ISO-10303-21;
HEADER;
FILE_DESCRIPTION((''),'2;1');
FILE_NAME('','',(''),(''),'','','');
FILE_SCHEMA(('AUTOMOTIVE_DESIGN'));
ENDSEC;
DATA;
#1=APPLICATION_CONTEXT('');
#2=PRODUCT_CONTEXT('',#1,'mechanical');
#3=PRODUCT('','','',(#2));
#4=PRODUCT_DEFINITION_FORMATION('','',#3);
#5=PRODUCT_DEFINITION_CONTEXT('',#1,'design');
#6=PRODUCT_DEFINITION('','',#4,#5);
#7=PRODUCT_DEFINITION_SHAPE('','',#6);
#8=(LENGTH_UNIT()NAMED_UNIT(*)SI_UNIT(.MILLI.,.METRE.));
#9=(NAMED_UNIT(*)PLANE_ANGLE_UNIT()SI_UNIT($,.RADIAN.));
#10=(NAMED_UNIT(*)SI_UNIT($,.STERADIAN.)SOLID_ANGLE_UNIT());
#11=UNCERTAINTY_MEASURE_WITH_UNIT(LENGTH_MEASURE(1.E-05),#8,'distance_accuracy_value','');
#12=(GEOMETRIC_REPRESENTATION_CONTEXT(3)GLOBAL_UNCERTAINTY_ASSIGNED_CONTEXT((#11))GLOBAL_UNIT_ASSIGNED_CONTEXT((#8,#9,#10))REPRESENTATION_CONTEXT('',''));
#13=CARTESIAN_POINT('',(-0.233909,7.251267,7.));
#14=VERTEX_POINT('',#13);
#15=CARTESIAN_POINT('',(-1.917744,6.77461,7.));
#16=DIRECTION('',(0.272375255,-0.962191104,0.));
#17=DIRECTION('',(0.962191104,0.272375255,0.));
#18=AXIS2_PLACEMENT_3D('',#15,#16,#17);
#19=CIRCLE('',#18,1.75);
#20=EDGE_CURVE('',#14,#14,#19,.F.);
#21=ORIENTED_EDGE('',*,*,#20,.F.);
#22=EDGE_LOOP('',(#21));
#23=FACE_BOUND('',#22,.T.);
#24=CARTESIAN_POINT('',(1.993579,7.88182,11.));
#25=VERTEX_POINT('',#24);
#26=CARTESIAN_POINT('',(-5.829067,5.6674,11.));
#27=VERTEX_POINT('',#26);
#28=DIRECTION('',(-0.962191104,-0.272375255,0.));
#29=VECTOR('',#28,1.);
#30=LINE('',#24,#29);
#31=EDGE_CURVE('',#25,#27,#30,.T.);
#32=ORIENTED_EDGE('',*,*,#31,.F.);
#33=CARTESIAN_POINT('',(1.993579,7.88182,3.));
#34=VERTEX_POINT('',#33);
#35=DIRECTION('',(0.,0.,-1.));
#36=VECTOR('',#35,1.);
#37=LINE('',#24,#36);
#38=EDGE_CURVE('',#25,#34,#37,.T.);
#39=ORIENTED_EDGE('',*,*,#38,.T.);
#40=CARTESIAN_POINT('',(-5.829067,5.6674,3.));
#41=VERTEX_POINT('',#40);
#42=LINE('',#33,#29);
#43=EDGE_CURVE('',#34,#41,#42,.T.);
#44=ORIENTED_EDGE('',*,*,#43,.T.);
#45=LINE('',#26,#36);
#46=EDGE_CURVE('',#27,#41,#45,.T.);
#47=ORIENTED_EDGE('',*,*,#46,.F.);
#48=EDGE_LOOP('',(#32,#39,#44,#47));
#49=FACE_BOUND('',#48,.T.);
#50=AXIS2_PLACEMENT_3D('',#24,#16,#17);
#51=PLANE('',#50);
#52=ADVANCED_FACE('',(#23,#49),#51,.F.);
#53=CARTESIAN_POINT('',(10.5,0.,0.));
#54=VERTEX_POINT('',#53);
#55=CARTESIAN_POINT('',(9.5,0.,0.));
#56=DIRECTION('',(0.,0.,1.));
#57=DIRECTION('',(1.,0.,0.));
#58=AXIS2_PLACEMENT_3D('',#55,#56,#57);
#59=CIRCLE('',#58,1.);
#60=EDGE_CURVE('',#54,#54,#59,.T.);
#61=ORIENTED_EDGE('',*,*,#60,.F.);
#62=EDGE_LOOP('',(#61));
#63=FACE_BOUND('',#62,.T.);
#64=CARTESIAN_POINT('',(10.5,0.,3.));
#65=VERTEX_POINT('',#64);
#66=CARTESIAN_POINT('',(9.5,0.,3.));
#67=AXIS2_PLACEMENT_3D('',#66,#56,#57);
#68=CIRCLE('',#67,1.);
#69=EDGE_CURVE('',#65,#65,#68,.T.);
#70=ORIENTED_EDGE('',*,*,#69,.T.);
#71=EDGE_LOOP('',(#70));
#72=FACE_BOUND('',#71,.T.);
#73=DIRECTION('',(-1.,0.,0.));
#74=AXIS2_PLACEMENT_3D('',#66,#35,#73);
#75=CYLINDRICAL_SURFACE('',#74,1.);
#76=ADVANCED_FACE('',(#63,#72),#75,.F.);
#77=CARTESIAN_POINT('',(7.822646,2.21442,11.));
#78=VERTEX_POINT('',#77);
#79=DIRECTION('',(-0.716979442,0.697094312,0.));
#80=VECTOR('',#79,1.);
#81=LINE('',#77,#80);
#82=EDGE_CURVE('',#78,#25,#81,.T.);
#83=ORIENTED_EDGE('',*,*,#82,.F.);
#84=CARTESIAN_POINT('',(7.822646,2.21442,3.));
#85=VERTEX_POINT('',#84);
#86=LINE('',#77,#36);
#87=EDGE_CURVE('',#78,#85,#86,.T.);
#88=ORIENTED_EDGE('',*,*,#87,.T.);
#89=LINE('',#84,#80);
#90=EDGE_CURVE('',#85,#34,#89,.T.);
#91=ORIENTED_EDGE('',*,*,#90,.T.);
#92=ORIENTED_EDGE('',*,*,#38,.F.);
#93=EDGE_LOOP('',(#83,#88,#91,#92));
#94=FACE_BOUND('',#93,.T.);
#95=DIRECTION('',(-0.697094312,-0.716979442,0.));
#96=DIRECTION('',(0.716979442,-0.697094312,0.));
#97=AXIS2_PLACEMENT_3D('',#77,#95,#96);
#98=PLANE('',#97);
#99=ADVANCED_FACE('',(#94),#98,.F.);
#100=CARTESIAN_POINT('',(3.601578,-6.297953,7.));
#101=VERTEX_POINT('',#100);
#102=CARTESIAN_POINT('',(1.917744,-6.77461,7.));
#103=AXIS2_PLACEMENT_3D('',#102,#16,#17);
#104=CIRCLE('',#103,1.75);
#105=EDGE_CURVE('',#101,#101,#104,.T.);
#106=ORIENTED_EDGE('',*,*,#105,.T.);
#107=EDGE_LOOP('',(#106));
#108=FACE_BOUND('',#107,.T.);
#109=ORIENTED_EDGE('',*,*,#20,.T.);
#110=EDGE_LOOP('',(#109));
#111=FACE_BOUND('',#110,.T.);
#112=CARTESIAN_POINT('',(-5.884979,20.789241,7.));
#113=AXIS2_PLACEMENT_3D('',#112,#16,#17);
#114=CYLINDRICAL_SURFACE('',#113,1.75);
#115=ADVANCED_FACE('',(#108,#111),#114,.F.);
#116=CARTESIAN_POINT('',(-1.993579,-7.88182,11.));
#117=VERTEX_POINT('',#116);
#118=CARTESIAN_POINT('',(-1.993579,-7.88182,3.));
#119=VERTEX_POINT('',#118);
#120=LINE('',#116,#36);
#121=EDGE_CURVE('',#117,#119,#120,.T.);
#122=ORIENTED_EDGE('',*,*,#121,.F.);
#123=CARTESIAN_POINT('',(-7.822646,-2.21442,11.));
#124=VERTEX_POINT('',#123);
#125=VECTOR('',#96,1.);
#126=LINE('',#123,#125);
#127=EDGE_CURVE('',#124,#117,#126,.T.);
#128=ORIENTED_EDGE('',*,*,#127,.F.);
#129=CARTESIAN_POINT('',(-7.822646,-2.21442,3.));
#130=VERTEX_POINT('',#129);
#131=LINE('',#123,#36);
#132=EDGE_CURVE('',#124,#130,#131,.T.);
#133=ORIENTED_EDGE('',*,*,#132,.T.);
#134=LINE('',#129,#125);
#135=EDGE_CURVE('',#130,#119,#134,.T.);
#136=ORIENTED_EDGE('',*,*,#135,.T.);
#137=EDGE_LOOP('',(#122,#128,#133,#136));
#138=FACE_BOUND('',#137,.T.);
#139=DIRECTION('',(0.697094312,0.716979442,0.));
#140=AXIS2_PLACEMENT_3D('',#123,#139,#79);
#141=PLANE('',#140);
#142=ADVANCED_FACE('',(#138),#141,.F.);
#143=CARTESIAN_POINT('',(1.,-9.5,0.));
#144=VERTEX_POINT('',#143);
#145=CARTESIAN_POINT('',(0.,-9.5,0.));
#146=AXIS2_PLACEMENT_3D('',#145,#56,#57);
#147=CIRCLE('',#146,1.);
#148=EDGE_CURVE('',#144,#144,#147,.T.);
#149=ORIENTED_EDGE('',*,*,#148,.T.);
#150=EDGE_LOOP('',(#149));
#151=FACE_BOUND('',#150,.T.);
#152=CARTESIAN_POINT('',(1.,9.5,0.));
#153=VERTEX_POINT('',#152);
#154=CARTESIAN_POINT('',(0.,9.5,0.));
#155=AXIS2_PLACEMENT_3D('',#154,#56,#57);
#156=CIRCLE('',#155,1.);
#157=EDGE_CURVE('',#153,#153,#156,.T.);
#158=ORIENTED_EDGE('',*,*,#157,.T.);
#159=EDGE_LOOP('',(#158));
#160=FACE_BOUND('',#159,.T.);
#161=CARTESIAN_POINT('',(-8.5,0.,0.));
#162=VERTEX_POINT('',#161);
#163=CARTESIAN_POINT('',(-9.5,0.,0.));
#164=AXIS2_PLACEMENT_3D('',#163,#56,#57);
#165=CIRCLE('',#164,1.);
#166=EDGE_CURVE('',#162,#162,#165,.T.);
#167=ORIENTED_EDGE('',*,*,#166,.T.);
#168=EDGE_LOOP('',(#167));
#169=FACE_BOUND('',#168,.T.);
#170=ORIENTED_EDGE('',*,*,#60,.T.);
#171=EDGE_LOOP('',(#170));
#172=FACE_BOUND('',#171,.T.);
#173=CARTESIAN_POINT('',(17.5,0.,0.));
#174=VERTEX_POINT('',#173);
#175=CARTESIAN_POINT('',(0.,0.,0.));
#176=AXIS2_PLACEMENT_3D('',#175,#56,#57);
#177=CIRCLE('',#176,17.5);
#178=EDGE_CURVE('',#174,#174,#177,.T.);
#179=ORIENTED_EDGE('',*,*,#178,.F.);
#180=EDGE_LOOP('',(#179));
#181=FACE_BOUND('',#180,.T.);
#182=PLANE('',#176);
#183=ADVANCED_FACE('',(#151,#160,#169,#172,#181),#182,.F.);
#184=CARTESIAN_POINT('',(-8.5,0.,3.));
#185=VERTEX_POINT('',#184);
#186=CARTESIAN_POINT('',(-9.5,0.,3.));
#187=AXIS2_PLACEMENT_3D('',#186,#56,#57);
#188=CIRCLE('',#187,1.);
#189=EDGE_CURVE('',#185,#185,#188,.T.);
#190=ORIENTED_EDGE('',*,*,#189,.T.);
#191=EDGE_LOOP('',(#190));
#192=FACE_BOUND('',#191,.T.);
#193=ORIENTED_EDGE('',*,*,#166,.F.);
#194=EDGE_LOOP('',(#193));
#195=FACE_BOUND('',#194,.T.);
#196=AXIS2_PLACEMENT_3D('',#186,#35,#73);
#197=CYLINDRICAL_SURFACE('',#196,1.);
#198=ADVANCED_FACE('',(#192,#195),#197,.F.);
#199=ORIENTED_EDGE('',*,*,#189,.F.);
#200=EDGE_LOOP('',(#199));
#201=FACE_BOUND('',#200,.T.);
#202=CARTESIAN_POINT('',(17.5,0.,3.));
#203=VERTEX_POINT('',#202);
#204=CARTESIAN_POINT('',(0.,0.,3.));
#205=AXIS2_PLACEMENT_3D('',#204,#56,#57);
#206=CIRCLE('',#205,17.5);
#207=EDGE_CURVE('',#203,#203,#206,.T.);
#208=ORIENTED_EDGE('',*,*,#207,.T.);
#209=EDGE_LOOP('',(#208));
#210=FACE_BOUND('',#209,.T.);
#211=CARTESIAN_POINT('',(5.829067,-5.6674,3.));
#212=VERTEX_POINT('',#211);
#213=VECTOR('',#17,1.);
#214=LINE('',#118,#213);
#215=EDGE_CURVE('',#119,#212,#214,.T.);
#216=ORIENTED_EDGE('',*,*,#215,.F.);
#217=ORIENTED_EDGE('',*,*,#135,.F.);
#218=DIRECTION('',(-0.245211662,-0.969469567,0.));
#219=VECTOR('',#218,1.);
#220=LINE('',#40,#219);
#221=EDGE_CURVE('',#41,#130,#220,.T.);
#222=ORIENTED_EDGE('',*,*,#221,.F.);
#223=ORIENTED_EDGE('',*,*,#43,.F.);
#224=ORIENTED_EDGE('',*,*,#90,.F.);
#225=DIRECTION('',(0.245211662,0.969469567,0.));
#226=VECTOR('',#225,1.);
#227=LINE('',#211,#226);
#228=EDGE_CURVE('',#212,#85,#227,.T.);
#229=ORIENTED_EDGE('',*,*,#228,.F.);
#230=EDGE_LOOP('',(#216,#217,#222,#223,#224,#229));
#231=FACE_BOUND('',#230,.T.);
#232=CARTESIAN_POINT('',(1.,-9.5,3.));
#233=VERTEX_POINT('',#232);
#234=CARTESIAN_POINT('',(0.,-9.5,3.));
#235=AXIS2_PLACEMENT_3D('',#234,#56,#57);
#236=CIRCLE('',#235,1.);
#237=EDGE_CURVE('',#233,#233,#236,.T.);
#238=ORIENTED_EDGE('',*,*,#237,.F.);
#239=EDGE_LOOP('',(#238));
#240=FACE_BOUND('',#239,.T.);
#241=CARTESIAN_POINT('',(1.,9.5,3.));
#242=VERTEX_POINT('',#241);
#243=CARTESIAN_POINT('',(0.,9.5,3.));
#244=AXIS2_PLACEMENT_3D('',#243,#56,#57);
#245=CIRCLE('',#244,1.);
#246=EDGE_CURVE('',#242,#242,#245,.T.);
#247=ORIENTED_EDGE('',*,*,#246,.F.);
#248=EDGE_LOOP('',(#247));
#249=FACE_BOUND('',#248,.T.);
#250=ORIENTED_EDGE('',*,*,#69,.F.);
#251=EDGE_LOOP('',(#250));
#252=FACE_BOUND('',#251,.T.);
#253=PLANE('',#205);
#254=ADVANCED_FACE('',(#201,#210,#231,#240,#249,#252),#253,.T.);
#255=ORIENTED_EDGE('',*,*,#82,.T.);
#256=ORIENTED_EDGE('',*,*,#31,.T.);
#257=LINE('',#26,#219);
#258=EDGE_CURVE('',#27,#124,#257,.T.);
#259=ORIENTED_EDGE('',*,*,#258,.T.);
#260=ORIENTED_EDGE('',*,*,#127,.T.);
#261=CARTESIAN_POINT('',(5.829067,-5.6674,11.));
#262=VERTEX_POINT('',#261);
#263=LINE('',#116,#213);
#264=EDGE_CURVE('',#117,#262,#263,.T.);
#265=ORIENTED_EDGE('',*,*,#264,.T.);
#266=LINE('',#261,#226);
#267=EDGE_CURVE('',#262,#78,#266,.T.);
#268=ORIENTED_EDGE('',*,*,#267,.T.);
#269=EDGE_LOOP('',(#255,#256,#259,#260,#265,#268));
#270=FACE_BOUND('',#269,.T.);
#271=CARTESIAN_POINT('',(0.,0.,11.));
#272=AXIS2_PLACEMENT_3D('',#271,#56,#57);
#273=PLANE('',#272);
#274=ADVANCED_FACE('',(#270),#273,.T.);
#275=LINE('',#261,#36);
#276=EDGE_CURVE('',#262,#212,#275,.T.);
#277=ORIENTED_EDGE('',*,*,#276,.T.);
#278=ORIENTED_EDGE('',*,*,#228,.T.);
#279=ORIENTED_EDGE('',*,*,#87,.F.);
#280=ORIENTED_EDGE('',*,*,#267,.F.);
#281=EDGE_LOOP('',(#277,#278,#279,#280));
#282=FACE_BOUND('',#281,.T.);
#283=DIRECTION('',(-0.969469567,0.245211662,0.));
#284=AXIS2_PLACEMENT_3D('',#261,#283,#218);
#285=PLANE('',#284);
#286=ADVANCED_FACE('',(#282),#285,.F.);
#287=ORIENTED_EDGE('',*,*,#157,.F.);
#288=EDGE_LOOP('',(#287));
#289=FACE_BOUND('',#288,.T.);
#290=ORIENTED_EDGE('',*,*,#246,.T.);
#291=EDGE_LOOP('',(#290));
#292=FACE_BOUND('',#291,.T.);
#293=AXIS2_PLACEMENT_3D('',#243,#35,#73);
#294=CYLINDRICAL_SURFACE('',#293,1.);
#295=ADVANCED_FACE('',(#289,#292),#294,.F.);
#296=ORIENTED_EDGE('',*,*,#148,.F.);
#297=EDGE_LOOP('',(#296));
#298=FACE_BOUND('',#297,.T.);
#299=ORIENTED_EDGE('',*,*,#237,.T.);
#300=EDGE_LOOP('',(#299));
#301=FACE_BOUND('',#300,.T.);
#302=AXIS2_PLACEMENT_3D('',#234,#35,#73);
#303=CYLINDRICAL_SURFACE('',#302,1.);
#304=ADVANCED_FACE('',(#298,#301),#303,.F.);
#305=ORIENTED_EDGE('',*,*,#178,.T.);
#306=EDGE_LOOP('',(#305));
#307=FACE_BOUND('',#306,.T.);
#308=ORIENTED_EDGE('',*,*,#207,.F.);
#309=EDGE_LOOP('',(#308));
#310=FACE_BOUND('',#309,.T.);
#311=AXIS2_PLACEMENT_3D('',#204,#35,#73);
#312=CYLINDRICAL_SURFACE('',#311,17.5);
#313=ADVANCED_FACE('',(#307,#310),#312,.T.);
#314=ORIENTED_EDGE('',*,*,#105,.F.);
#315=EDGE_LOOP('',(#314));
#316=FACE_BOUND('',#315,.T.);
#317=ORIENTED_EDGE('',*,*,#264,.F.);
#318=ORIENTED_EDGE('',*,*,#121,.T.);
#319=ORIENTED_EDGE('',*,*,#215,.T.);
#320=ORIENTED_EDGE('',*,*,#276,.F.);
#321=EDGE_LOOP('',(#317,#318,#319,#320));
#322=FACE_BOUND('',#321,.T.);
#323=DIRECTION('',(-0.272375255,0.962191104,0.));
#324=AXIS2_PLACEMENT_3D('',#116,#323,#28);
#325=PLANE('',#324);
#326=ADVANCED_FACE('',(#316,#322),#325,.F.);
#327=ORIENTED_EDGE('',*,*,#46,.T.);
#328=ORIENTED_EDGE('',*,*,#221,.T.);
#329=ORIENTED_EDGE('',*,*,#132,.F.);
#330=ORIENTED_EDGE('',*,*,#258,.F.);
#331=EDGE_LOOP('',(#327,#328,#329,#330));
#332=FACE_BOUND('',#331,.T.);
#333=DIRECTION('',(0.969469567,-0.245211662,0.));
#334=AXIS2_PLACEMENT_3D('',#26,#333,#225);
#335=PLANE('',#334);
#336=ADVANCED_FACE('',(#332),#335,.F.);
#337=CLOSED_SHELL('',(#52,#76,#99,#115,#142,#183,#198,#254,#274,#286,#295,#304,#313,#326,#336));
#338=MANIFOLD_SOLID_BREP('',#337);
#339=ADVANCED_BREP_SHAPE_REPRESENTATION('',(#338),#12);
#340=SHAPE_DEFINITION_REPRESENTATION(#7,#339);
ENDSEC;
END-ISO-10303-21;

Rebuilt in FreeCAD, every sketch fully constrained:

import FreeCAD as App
import Part
import Sketcher
Q = App.Units.Quantity

doc = App.newDocument("Part")
body = doc.addObject("PartDesign::Body", "Body")

sketch1 = body.newObject("Sketcher::SketchObject", "Sketch")
sketch1.AttachmentSupport = (doc.getObject("XY_Plane"), [""])
sketch1.MapMode = "FlatFace"
sketch1.addGeometry(Part.Circle(App.Vector(0, 0, 0), App.Vector(0, 0, 1), 17.5), False)
sketch1.addGeometry(Part.Circle(App.Vector(0, -9.5, 0), App.Vector(0, 0, 1), 1), False)
sketch1.addGeometry(Part.Circle(App.Vector(-9.5, 0, 0), App.Vector(0, 0, 1), 1), False)
sketch1.addGeometry(Part.Circle(App.Vector(9.5, 0, 0), App.Vector(0, 0, 1), 1), False)
sketch1.addGeometry(Part.Circle(App.Vector(0, 9.5, 0), App.Vector(0, 0, 1), 1), False)
sketch1.addConstraint(Sketcher.Constraint("Coincident", 0, 3, -1, 1))
sketch1.addConstraint(Sketcher.Constraint("Equal", 1, 2))
sketch1.addConstraint(Sketcher.Constraint("Equal", 2, 3))
sketch1.addConstraint(Sketcher.Constraint("Equal", 3, 4))
sketch1.addConstraint(Sketcher.Constraint("Symmetric", 2, 3, 3, 3, -1, 1))
sketch1.addConstraint(Sketcher.Constraint("Symmetric", 1, 3, 4, 3, -1, 1))
sketch1.addConstraint(Sketcher.Constraint("PointOnObject", 1, 3, -2))
sketch1.addConstraint(Sketcher.Constraint("PointOnObject", 2, 3, -1))
sketch1.addConstraint(Sketcher.Constraint("Diameter", 0, Q("35 mm")))
sketch1.addConstraint(Sketcher.Constraint("Diameter", 1, Q("2 mm")))
sketch1.addConstraint(Sketcher.Constraint("DistanceX", 2, 3, 3, 3, Q("19 mm")))
sketch1.addConstraint(Sketcher.Constraint("DistanceY", 1, 3, 4, 3, Q("19 mm")))
pad1 = body.newObject("PartDesign::Pad", "Pad")
pad1.Profile = sketch1
pad1.Length = 3

sketch2 = body.newObject("Sketcher::SketchObject", "Sketch001")
sketch2.AttachmentSupport = (doc.getObject("XY_Plane"), [""])
sketch2.MapMode = "FlatFace"
sketch2.AttachmentOffset = App.Placement(App.Vector(0, 0, 3), App.Rotation())
sketch2.addGeometry(Part.LineSegment(App.Vector(2, 8, 0), App.Vector(-6, 6, 0)), False)
sketch2.addGeometry(Part.LineSegment(App.Vector(-6, 6, 0), App.Vector(-8, -2, 0)), False)
sketch2.addGeometry(Part.LineSegment(App.Vector(-8, -2, 0), App.Vector(-2, -8, 0)), False)
sketch2.addGeometry(Part.LineSegment(App.Vector(-2, -8, 0), App.Vector(6, -6, 0)), False)
sketch2.addGeometry(Part.LineSegment(App.Vector(6, -6, 0), App.Vector(8, 2, 0)), False)
sketch2.addGeometry(Part.LineSegment(App.Vector(8, 2, 0), App.Vector(2, 8, 0)), False)
sketch2.addConstraint(Sketcher.Constraint("Coincident", 0, 2, 1, 1))
sketch2.addConstraint(Sketcher.Constraint("Coincident", 1, 2, 2, 1))
sketch2.addConstraint(Sketcher.Constraint("Coincident", 2, 2, 3, 1))
sketch2.addConstraint(Sketcher.Constraint("Coincident", 3, 2, 4, 1))
sketch2.addConstraint(Sketcher.Constraint("Coincident", 4, 2, 5, 1))
sketch2.addConstraint(Sketcher.Constraint("Coincident", 5, 2, 0, 1))
sketch2.addConstraint(Sketcher.Constraint("Symmetric", 0, 2, 3, 2, -1, 1))
sketch2.addConstraint(Sketcher.Constraint("Symmetric", 1, 2, 4, 2, -1, 1))
sketch2.addConstraint(Sketcher.Constraint("Symmetric", 2, 2, 5, 2, -1, 1))
sketch2.addConstraint(Sketcher.Constraint("Equal", 0, 1))
sketch2.addConstraint(Sketcher.Constraint("Equal", 1, 2))
sketch2.addConstraint(Sketcher.Constraint("DistanceY", -1, 1, 0, 2, Q("5.6674 mm")))
sketch2.addConstraint(Sketcher.Constraint("DistanceY", 2, 2, 1, 2, Q("5.6674 mm")))
sketch2.addConstraint(Sketcher.Constraint("DistanceY", 1, 2, -1, 1, Q("2.21442 mm")))
sketch2.addConstraint(Sketcher.Constraint("DistanceX", 2, 2, -1, 1, Q("1.993579 mm")))
pad2 = body.newObject("PartDesign::Pad", "Pad001")
pad2.Profile = sketch2
pad2.Length = 8

sketch3 = body.newObject("Sketcher::SketchObject", "Sketch002")
sketch3.Placement = App.Placement(App.Vector(1.917744, -6.77461, 0), App.Rotation(App.Vector(0.962191104, 0.272375255, 0), App.Vector(0, 0, 1), App.Vector(0.272375255, -0.962191104, 0), "ZXY"))
sketch3.addGeometry(Part.Circle(App.Vector(0, 7, 0), App.Vector(0, 0, 1), 1.8), False)
sketch3.addConstraint(Sketcher.Constraint("PointOnObject", 0, 3, -2))
sketch3.addConstraint(Sketcher.Constraint("Diameter", 0, Q("3.5 mm")))
sketch3.addConstraint(Sketcher.Constraint("DistanceY", -1, 1, 0, 3, Q("7 mm")))
pocket1 = body.newObject("PartDesign::Pocket", "Pocket")
pocket1.Profile = sketch3
pocket1.Type = "UpToFirst"

doc.recompute()
